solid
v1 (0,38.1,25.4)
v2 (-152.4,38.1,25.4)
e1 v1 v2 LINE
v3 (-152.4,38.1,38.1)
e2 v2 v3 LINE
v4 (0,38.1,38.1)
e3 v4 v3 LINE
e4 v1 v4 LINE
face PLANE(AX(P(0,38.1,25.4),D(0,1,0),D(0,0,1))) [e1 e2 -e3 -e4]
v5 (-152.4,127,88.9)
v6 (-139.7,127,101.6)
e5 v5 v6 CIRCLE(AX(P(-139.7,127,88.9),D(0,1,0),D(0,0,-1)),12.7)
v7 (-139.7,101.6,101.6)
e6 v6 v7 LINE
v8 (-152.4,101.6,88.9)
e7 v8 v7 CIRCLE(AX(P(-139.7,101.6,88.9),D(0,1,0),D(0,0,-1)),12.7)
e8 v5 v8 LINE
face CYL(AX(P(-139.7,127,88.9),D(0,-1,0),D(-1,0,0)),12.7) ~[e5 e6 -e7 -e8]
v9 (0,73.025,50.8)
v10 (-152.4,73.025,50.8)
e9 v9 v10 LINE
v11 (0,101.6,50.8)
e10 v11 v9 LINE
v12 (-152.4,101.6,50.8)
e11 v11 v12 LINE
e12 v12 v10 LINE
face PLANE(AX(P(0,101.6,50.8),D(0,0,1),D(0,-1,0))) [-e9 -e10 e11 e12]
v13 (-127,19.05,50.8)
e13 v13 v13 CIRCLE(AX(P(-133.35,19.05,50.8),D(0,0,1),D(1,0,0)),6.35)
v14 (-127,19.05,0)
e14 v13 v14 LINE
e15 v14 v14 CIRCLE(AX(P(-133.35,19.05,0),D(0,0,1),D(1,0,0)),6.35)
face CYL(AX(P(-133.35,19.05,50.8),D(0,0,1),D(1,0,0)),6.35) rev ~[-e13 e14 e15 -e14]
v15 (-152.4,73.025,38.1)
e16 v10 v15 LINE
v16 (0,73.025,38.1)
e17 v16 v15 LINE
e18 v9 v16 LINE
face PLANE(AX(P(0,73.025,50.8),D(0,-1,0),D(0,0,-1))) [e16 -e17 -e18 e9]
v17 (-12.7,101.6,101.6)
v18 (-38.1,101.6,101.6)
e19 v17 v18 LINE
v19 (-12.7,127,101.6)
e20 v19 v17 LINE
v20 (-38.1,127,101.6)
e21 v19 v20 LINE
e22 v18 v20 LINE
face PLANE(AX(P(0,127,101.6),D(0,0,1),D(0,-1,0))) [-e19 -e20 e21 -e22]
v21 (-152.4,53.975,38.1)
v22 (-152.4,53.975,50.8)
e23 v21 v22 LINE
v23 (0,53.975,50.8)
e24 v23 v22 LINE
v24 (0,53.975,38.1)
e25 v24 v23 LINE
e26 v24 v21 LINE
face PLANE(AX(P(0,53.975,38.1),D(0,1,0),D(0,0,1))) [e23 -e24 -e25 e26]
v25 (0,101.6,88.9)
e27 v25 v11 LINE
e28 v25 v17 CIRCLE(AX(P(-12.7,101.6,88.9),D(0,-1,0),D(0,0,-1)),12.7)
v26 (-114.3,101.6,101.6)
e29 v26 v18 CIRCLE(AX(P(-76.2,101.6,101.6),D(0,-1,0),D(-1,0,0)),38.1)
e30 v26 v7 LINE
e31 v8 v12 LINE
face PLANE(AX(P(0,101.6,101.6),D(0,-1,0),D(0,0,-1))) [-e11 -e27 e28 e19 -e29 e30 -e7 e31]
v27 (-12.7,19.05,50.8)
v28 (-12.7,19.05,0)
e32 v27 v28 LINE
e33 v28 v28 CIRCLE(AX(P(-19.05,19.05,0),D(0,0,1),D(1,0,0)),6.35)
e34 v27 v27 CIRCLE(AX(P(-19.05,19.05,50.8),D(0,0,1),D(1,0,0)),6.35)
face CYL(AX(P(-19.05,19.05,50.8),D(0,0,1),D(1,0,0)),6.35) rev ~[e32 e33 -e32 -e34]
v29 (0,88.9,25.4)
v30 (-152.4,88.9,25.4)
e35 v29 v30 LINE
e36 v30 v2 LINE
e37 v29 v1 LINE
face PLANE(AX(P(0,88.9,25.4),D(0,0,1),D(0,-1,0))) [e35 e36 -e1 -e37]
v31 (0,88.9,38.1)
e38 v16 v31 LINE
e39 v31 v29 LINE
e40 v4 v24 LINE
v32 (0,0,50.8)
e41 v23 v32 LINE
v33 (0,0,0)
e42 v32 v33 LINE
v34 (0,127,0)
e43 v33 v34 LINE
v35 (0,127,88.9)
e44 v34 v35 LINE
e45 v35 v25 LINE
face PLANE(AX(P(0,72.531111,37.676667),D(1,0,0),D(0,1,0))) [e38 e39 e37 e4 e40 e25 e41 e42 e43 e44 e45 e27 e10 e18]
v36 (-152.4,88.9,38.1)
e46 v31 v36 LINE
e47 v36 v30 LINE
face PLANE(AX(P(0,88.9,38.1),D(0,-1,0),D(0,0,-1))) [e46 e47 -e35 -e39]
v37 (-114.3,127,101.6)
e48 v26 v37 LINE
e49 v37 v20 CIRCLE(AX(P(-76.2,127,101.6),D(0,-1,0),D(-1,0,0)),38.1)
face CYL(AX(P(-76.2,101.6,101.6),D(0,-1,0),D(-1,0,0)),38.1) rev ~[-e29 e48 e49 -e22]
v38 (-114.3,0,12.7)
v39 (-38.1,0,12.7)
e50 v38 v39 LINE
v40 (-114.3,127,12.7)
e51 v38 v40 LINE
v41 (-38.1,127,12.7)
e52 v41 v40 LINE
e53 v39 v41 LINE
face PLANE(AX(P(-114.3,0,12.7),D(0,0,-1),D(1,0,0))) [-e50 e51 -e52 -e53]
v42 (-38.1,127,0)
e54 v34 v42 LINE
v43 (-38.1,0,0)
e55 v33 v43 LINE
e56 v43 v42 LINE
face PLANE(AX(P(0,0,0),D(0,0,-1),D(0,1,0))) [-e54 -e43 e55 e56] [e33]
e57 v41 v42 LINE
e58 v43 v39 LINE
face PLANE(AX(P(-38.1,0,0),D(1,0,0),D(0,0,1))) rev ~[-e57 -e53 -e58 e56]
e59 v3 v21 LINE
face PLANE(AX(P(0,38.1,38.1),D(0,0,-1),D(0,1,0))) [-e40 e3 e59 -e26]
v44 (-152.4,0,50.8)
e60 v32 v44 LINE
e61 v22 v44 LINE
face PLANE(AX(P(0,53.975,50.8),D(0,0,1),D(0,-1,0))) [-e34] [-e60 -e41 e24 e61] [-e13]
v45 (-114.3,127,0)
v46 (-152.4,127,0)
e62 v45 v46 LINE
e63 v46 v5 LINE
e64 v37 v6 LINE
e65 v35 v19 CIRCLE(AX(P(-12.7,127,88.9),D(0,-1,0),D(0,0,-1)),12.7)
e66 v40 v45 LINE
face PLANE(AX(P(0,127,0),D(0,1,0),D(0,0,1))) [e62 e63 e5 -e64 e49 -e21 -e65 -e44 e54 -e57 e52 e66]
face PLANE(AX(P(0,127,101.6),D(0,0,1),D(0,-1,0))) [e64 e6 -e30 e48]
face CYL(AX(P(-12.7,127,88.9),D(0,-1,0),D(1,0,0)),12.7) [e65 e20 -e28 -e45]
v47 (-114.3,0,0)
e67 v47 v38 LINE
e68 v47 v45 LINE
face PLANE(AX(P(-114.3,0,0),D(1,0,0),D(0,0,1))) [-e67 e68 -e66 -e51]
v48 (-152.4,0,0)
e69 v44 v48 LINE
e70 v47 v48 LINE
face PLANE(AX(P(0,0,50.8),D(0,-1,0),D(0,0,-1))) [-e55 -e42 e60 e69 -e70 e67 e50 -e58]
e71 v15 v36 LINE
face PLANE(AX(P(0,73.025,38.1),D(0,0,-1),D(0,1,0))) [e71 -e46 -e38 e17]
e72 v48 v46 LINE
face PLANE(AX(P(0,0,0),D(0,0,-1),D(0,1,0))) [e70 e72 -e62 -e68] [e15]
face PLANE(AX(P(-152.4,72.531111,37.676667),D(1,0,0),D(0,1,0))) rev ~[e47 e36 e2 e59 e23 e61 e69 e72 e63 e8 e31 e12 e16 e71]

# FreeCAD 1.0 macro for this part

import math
import FreeCAD as App
import Part
import Sketcher

V = App.Vector
Q = App.Units.Quantity


def edges_at(feature, points):
    """Names of the edges that pass closest to the given points."""
    edges = feature.Shape.Edges
    near = lambda p: min(range(len(edges)), key=lambda i: edges[i].distToShape(Part.Vertex(*p))[0])
    return sorted({f"Edge{near(p) + 1}" for p in points})

doc = App.newDocument("Part")
body = doc.addObject("PartDesign::Body", "Body")

# Sketch on YZ plane
sketch1 = body.newObject("Sketcher::SketchObject", "Sketch")
sketch1.AttachmentSupport = (doc.getObject("YZ_Plane"), [""])
sketch1.MapMode = "FlatFace"
sketch1.addGeometry(Part.LineSegment(V(0, 51, 0), V(0, 0, 0)), False)
sketch1.addGeometry(Part.LineSegment(V(0, 0, 0), V(127, 0, 0)), False)
sketch1.addGeometry(Part.LineSegment(V(127, 0, 0), V(127, 102, 0)), False)
sketch1.addGeometry(Part.LineSegment(V(127, 102, 0), V(102, 102, 0)), False)
sketch1.addGeometry(Part.LineSegment(V(102, 102, 0), V(102, 51, 0)), False)
sketch1.addGeometry(Part.LineSegment(V(102, 51, 0), V(73, 51, 0)), False)
sketch1.addGeometry(Part.LineSegment(V(73, 51, 0), V(73, 38, 0)), False)
sketch1.addGeometry(Part.LineSegment(V(73, 38, 0), V(89, 38, 0)), False)
sketch1.addGeometry(Part.LineSegment(V(89, 38, 0), V(89, 25, 0)), False)
sketch1.addGeometry(Part.LineSegment(V(89, 25, 0), V(38, 25, 0)), False)
sketch1.addGeometry(Part.LineSegment(V(38, 25, 0), V(38, 38, 0)), False)
sketch1.addGeometry(Part.LineSegment(V(38, 38, 0), V(54, 38, 0)), False)
sketch1.addGeometry(Part.LineSegment(V(54, 38, 0), V(54, 51, 0)), False)
sketch1.addGeometry(Part.LineSegment(V(54, 51, 0), V(0, 51, 0)), False)
sketch1.addConstraint(Sketcher.Constraint("Coincident", 0, 2, 1, 1))
sketch1.addConstraint(Sketcher.Constraint("Coincident", 1, 2, 2, 1))
sketch1.addConstraint(Sketcher.Constraint("Coincident", 2, 2, 3, 1))
sketch1.addConstraint(Sketcher.Constraint("Coincident", 3, 2, 4, 1))
sketch1.addConstraint(Sketcher.Constraint("Coincident", 4, 2, 5, 1))
sketch1.addConstraint(Sketcher.Constraint("Coincident", 5, 2, 6, 1))
sketch1.addConstraint(Sketcher.Constraint("Coincident", 6, 2, 7, 1))
sketch1.addConstraint(Sketcher.Constraint("Coincident", 7, 2, 8, 1))
sketch1.addConstraint(Sketcher.Constraint("Coincident", 8, 2, 9, 1))
sketch1.addConstraint(Sketcher.Constraint("Coincident", 9, 2, 10, 1))
sketch1.addConstraint(Sketcher.Constraint("Coincident", 10, 2, 11, 1))
sketch1.addConstraint(Sketcher.Constraint("Coincident", 11, 2, 12, 1))
sketch1.addConstraint(Sketcher.Constraint("Coincident", 12, 2, 13, 1))
sketch1.addConstraint(Sketcher.Constraint("Coincident", 13, 2, 0, 1))
sketch1.addConstraint(Sketcher.Constraint("Vertical", 0))
sketch1.addConstraint(Sketcher.Constraint("Horizontal", 1))
sketch1.addConstraint(Sketcher.Constraint("Vertical", 2))
sketch1.addConstraint(Sketcher.Constraint("Horizontal", 3))
sketch1.addConstraint(Sketcher.Constraint("Vertical", 4))
sketch1.addConstraint(Sketcher.Constraint("Horizontal", 5))
sketch1.addConstraint(Sketcher.Constraint("Vertical", 6))
sketch1.addConstraint(Sketcher.Constraint("Horizontal", 7))
sketch1.addConstraint(Sketcher.Constraint("Vertical", 8))
sketch1.addConstraint(Sketcher.Constraint("Horizontal", 9))
sketch1.addConstraint(Sketcher.Constraint("Vertical", 10))
sketch1.addConstraint(Sketcher.Constraint("Horizontal", 11))
sketch1.addConstraint(Sketcher.Constraint("Vertical", 12))
sketch1.addConstraint(Sketcher.Constraint("Horizontal", 13))
sketch1.addConstraint(Sketcher.Constraint("Coincident", 0, 2, -1, 1))
sketch1.addConstraint(Sketcher.Constraint("Horizontal", 7, 2, 10, 2))
sketch1.addConstraint(Sketcher.Constraint("Horizontal", 5, 2, 12, 2))
sketch1.addConstraint(Sketcher.Constraint("Equal", 7, 11))
sketch1.addConstraint(Sketcher.Constraint("Equal", 9, 0))
sketch1.addConstraint(Sketcher.Constraint("Equal", 0, 4))
sketch1.addConstraint(Sketcher.Constraint("Equal", 6, 8))
sketch1.addConstraint(Sketcher.Constraint("DistanceX", 1, 1, 1, 2, Q("5 in")))
sketch1.addConstraint(Sketcher.Constraint("DistanceX", 3, 2, 3, 1, Q("1 in")))
sketch1.addConstraint(Sketcher.Constraint("DistanceX", 9, 2, 9, 1, Q("2 in")))
sketch1.addConstraint(Sketcher.Constraint("DistanceY", 6, 2, 6, 1, Q("0.5 in")))
sketch1.addConstraint(Sketcher.Constraint("DistanceX", -1, 1, 7, 2, Q("3.5 in")))
sketch1.addConstraint(Sketcher.Constraint("DistanceX", 5, 2, 5, 1, Q("1.125 in")))
pad1 = body.newObject("PartDesign::Pad", "Pad")
pad1.Profile = sketch1
pad1.Length = Q("6 in")
pad1.Reversed = True

# Sketch on XZ plane
sketch2 = body.newObject("Sketcher::SketchObject", "Sketch001")
sketch2.AttachmentSupport = (doc.getObject("XZ_Plane"), [""])
sketch2.MapMode = "FlatFace"
sketch2.addGeometry(Part.LineSegment(V(-114, 13, 0), V(-114, 0, 0)), False)
sketch2.addGeometry(Part.LineSegment(V(-114, 0, 0), V(-38, 0, 0)), False)
sketch2.addGeometry(Part.LineSegment(V(-38, 0, 0), V(-38, 13, 0)), False)
sketch2.addGeometry(Part.LineSegment(V(-38, 13, 0), V(-114, 13, 0)), False)
sketch2.addConstraint(Sketcher.Constraint("Coincident", 0, 2, 1, 1))
sketch2.addConstraint(Sketcher.Constraint("Coincident", 1, 2, 2, 1))
sketch2.addConstraint(Sketcher.Constraint("Coincident", 2, 2, 3, 1))
sketch2.addConstraint(Sketcher.Constraint("Coincident", 3, 2, 0, 1))
sketch2.addConstraint(Sketcher.Constraint("Vertical", 0))
sketch2.addConstraint(Sketcher.Constraint("Horizontal", 1))
sketch2.addConstraint(Sketcher.Constraint("Vertical", 2))
sketch2.addConstraint(Sketcher.Constraint("Horizontal", 3))
sketch2.addConstraint(Sketcher.Constraint("PointOnObject", 0, 2, -1))
sketch2.addConstraint(Sketcher.Constraint("DistanceX", 1, 1, 1, 2, Q("3 in")))
sketch2.addConstraint(Sketcher.Constraint("DistanceY", 0, 2, 0, 1, Q("0.5 in")))
sketch2.addConstraint(Sketcher.Constraint("DistanceX", 0, 2, -1, 1, Q("4.5 in")))
pocket1 = body.newObject("PartDesign::Pocket", "Pocket")
pocket1.Profile = sketch2
pocket1.Type = "ThroughAll"

# Sketch on XZ plane
sketch3 = body.newObject("Sketcher::SketchObject", "Sketch002")
sketch3.AttachmentSupport = (doc.getObject("XZ_Plane"), [""])
sketch3.MapMode = "FlatFace"
sketch3.AttachmentOffset = App.Placement(V(0, 0, -4 * 25.4), App.Rotation())
sketch3.addGeometry(Part.LineSegment(V(-38, 102, 0), V(-114, 102, 0)), False)
sketch3.addGeometry(Part.ArcOfCircle(Part.Circle(V(-76, 102, 0), V(0, 0, 1), 38), math.radians(180), math.radians(360)), False)
sketch3.addConstraint(Sketcher.Constraint("Coincident", 0, 1, 1, 2))
sketch3.addConstraint(Sketcher.Constraint("Coincident", 1, 1, 0, 2))
sketch3.addConstraint(Sketcher.Constraint("Horizontal", 0))
sketch3.addConstraint(Sketcher.Constraint("Horizontal", 1, 3, 0, 1))
sketch3.addConstraint(Sketcher.Constraint("Radius", 1, Q("1.5 in")))
sketch3.addConstraint(Sketcher.Constraint("DistanceX", 1, 3, -1, 1, Q("3 in")))
sketch3.addConstraint(Sketcher.Constraint("DistanceY", -1, 1, 1, 3, Q("4 in")))
pocket2 = body.newObject("PartDesign::Pocket", "Pocket001")
pocket2.Profile = sketch3
pocket2.Type = "ThroughAll"
doc.recompute()

fillet = body.newObject("PartDesign::Fillet", "Fillet")
fillet.Base = (pocket2, edges_at(pocket2, [(0, 114.3, 101.6), (-152.4, 114.3, 101.6)]))
fillet.Radius = Q("0.5 in")

# Sketch on XY plane
sketch4 = body.newObject("Sketcher::SketchObject", "Sketch003")
sketch4.AttachmentSupport = (doc.getObject("XY_Plane"), [""])
sketch4.MapMode = "FlatFace"
sketch4.AttachmentOffset = App.Placement(V(0, 0, 2 * 25.4), App.Rotation())
sketch4.addGeometry(Part.Circle(V(-133, 19, 0), V(0, 0, 1), 6), False)
sketch4.addGeometry(Part.Circle(V(-19, 19, 0), V(0, 0, 1), 6), False)
sketch4.addConstraint(Sketcher.Constraint("Equal", 0, 1))
sketch4.addConstraint(Sketcher.Constraint("Horizontal", 0, 3, 1, 3))
sketch4.addConstraint(Sketcher.Constraint("Diameter", 0, Q("0.5 in")))
sketch4.addConstraint(Sketcher.Constraint("DistanceX", 0, 3, 1, 3, Q("4.5 in")))
sketch4.addConstraint(Sketcher.Constraint("DistanceX", 0, 3, -1, 1, Q("5.25 in")))
sketch4.addConstraint(Sketcher.Constraint("DistanceY", -1, 1, 0, 3, Q("0.75 in")))
pocket3 = body.newObject("PartDesign::Pocket", "Pocket002")
pocket3.Profile = sketch4
pocket3.Type = "ThroughAll"

doc.recompute()
